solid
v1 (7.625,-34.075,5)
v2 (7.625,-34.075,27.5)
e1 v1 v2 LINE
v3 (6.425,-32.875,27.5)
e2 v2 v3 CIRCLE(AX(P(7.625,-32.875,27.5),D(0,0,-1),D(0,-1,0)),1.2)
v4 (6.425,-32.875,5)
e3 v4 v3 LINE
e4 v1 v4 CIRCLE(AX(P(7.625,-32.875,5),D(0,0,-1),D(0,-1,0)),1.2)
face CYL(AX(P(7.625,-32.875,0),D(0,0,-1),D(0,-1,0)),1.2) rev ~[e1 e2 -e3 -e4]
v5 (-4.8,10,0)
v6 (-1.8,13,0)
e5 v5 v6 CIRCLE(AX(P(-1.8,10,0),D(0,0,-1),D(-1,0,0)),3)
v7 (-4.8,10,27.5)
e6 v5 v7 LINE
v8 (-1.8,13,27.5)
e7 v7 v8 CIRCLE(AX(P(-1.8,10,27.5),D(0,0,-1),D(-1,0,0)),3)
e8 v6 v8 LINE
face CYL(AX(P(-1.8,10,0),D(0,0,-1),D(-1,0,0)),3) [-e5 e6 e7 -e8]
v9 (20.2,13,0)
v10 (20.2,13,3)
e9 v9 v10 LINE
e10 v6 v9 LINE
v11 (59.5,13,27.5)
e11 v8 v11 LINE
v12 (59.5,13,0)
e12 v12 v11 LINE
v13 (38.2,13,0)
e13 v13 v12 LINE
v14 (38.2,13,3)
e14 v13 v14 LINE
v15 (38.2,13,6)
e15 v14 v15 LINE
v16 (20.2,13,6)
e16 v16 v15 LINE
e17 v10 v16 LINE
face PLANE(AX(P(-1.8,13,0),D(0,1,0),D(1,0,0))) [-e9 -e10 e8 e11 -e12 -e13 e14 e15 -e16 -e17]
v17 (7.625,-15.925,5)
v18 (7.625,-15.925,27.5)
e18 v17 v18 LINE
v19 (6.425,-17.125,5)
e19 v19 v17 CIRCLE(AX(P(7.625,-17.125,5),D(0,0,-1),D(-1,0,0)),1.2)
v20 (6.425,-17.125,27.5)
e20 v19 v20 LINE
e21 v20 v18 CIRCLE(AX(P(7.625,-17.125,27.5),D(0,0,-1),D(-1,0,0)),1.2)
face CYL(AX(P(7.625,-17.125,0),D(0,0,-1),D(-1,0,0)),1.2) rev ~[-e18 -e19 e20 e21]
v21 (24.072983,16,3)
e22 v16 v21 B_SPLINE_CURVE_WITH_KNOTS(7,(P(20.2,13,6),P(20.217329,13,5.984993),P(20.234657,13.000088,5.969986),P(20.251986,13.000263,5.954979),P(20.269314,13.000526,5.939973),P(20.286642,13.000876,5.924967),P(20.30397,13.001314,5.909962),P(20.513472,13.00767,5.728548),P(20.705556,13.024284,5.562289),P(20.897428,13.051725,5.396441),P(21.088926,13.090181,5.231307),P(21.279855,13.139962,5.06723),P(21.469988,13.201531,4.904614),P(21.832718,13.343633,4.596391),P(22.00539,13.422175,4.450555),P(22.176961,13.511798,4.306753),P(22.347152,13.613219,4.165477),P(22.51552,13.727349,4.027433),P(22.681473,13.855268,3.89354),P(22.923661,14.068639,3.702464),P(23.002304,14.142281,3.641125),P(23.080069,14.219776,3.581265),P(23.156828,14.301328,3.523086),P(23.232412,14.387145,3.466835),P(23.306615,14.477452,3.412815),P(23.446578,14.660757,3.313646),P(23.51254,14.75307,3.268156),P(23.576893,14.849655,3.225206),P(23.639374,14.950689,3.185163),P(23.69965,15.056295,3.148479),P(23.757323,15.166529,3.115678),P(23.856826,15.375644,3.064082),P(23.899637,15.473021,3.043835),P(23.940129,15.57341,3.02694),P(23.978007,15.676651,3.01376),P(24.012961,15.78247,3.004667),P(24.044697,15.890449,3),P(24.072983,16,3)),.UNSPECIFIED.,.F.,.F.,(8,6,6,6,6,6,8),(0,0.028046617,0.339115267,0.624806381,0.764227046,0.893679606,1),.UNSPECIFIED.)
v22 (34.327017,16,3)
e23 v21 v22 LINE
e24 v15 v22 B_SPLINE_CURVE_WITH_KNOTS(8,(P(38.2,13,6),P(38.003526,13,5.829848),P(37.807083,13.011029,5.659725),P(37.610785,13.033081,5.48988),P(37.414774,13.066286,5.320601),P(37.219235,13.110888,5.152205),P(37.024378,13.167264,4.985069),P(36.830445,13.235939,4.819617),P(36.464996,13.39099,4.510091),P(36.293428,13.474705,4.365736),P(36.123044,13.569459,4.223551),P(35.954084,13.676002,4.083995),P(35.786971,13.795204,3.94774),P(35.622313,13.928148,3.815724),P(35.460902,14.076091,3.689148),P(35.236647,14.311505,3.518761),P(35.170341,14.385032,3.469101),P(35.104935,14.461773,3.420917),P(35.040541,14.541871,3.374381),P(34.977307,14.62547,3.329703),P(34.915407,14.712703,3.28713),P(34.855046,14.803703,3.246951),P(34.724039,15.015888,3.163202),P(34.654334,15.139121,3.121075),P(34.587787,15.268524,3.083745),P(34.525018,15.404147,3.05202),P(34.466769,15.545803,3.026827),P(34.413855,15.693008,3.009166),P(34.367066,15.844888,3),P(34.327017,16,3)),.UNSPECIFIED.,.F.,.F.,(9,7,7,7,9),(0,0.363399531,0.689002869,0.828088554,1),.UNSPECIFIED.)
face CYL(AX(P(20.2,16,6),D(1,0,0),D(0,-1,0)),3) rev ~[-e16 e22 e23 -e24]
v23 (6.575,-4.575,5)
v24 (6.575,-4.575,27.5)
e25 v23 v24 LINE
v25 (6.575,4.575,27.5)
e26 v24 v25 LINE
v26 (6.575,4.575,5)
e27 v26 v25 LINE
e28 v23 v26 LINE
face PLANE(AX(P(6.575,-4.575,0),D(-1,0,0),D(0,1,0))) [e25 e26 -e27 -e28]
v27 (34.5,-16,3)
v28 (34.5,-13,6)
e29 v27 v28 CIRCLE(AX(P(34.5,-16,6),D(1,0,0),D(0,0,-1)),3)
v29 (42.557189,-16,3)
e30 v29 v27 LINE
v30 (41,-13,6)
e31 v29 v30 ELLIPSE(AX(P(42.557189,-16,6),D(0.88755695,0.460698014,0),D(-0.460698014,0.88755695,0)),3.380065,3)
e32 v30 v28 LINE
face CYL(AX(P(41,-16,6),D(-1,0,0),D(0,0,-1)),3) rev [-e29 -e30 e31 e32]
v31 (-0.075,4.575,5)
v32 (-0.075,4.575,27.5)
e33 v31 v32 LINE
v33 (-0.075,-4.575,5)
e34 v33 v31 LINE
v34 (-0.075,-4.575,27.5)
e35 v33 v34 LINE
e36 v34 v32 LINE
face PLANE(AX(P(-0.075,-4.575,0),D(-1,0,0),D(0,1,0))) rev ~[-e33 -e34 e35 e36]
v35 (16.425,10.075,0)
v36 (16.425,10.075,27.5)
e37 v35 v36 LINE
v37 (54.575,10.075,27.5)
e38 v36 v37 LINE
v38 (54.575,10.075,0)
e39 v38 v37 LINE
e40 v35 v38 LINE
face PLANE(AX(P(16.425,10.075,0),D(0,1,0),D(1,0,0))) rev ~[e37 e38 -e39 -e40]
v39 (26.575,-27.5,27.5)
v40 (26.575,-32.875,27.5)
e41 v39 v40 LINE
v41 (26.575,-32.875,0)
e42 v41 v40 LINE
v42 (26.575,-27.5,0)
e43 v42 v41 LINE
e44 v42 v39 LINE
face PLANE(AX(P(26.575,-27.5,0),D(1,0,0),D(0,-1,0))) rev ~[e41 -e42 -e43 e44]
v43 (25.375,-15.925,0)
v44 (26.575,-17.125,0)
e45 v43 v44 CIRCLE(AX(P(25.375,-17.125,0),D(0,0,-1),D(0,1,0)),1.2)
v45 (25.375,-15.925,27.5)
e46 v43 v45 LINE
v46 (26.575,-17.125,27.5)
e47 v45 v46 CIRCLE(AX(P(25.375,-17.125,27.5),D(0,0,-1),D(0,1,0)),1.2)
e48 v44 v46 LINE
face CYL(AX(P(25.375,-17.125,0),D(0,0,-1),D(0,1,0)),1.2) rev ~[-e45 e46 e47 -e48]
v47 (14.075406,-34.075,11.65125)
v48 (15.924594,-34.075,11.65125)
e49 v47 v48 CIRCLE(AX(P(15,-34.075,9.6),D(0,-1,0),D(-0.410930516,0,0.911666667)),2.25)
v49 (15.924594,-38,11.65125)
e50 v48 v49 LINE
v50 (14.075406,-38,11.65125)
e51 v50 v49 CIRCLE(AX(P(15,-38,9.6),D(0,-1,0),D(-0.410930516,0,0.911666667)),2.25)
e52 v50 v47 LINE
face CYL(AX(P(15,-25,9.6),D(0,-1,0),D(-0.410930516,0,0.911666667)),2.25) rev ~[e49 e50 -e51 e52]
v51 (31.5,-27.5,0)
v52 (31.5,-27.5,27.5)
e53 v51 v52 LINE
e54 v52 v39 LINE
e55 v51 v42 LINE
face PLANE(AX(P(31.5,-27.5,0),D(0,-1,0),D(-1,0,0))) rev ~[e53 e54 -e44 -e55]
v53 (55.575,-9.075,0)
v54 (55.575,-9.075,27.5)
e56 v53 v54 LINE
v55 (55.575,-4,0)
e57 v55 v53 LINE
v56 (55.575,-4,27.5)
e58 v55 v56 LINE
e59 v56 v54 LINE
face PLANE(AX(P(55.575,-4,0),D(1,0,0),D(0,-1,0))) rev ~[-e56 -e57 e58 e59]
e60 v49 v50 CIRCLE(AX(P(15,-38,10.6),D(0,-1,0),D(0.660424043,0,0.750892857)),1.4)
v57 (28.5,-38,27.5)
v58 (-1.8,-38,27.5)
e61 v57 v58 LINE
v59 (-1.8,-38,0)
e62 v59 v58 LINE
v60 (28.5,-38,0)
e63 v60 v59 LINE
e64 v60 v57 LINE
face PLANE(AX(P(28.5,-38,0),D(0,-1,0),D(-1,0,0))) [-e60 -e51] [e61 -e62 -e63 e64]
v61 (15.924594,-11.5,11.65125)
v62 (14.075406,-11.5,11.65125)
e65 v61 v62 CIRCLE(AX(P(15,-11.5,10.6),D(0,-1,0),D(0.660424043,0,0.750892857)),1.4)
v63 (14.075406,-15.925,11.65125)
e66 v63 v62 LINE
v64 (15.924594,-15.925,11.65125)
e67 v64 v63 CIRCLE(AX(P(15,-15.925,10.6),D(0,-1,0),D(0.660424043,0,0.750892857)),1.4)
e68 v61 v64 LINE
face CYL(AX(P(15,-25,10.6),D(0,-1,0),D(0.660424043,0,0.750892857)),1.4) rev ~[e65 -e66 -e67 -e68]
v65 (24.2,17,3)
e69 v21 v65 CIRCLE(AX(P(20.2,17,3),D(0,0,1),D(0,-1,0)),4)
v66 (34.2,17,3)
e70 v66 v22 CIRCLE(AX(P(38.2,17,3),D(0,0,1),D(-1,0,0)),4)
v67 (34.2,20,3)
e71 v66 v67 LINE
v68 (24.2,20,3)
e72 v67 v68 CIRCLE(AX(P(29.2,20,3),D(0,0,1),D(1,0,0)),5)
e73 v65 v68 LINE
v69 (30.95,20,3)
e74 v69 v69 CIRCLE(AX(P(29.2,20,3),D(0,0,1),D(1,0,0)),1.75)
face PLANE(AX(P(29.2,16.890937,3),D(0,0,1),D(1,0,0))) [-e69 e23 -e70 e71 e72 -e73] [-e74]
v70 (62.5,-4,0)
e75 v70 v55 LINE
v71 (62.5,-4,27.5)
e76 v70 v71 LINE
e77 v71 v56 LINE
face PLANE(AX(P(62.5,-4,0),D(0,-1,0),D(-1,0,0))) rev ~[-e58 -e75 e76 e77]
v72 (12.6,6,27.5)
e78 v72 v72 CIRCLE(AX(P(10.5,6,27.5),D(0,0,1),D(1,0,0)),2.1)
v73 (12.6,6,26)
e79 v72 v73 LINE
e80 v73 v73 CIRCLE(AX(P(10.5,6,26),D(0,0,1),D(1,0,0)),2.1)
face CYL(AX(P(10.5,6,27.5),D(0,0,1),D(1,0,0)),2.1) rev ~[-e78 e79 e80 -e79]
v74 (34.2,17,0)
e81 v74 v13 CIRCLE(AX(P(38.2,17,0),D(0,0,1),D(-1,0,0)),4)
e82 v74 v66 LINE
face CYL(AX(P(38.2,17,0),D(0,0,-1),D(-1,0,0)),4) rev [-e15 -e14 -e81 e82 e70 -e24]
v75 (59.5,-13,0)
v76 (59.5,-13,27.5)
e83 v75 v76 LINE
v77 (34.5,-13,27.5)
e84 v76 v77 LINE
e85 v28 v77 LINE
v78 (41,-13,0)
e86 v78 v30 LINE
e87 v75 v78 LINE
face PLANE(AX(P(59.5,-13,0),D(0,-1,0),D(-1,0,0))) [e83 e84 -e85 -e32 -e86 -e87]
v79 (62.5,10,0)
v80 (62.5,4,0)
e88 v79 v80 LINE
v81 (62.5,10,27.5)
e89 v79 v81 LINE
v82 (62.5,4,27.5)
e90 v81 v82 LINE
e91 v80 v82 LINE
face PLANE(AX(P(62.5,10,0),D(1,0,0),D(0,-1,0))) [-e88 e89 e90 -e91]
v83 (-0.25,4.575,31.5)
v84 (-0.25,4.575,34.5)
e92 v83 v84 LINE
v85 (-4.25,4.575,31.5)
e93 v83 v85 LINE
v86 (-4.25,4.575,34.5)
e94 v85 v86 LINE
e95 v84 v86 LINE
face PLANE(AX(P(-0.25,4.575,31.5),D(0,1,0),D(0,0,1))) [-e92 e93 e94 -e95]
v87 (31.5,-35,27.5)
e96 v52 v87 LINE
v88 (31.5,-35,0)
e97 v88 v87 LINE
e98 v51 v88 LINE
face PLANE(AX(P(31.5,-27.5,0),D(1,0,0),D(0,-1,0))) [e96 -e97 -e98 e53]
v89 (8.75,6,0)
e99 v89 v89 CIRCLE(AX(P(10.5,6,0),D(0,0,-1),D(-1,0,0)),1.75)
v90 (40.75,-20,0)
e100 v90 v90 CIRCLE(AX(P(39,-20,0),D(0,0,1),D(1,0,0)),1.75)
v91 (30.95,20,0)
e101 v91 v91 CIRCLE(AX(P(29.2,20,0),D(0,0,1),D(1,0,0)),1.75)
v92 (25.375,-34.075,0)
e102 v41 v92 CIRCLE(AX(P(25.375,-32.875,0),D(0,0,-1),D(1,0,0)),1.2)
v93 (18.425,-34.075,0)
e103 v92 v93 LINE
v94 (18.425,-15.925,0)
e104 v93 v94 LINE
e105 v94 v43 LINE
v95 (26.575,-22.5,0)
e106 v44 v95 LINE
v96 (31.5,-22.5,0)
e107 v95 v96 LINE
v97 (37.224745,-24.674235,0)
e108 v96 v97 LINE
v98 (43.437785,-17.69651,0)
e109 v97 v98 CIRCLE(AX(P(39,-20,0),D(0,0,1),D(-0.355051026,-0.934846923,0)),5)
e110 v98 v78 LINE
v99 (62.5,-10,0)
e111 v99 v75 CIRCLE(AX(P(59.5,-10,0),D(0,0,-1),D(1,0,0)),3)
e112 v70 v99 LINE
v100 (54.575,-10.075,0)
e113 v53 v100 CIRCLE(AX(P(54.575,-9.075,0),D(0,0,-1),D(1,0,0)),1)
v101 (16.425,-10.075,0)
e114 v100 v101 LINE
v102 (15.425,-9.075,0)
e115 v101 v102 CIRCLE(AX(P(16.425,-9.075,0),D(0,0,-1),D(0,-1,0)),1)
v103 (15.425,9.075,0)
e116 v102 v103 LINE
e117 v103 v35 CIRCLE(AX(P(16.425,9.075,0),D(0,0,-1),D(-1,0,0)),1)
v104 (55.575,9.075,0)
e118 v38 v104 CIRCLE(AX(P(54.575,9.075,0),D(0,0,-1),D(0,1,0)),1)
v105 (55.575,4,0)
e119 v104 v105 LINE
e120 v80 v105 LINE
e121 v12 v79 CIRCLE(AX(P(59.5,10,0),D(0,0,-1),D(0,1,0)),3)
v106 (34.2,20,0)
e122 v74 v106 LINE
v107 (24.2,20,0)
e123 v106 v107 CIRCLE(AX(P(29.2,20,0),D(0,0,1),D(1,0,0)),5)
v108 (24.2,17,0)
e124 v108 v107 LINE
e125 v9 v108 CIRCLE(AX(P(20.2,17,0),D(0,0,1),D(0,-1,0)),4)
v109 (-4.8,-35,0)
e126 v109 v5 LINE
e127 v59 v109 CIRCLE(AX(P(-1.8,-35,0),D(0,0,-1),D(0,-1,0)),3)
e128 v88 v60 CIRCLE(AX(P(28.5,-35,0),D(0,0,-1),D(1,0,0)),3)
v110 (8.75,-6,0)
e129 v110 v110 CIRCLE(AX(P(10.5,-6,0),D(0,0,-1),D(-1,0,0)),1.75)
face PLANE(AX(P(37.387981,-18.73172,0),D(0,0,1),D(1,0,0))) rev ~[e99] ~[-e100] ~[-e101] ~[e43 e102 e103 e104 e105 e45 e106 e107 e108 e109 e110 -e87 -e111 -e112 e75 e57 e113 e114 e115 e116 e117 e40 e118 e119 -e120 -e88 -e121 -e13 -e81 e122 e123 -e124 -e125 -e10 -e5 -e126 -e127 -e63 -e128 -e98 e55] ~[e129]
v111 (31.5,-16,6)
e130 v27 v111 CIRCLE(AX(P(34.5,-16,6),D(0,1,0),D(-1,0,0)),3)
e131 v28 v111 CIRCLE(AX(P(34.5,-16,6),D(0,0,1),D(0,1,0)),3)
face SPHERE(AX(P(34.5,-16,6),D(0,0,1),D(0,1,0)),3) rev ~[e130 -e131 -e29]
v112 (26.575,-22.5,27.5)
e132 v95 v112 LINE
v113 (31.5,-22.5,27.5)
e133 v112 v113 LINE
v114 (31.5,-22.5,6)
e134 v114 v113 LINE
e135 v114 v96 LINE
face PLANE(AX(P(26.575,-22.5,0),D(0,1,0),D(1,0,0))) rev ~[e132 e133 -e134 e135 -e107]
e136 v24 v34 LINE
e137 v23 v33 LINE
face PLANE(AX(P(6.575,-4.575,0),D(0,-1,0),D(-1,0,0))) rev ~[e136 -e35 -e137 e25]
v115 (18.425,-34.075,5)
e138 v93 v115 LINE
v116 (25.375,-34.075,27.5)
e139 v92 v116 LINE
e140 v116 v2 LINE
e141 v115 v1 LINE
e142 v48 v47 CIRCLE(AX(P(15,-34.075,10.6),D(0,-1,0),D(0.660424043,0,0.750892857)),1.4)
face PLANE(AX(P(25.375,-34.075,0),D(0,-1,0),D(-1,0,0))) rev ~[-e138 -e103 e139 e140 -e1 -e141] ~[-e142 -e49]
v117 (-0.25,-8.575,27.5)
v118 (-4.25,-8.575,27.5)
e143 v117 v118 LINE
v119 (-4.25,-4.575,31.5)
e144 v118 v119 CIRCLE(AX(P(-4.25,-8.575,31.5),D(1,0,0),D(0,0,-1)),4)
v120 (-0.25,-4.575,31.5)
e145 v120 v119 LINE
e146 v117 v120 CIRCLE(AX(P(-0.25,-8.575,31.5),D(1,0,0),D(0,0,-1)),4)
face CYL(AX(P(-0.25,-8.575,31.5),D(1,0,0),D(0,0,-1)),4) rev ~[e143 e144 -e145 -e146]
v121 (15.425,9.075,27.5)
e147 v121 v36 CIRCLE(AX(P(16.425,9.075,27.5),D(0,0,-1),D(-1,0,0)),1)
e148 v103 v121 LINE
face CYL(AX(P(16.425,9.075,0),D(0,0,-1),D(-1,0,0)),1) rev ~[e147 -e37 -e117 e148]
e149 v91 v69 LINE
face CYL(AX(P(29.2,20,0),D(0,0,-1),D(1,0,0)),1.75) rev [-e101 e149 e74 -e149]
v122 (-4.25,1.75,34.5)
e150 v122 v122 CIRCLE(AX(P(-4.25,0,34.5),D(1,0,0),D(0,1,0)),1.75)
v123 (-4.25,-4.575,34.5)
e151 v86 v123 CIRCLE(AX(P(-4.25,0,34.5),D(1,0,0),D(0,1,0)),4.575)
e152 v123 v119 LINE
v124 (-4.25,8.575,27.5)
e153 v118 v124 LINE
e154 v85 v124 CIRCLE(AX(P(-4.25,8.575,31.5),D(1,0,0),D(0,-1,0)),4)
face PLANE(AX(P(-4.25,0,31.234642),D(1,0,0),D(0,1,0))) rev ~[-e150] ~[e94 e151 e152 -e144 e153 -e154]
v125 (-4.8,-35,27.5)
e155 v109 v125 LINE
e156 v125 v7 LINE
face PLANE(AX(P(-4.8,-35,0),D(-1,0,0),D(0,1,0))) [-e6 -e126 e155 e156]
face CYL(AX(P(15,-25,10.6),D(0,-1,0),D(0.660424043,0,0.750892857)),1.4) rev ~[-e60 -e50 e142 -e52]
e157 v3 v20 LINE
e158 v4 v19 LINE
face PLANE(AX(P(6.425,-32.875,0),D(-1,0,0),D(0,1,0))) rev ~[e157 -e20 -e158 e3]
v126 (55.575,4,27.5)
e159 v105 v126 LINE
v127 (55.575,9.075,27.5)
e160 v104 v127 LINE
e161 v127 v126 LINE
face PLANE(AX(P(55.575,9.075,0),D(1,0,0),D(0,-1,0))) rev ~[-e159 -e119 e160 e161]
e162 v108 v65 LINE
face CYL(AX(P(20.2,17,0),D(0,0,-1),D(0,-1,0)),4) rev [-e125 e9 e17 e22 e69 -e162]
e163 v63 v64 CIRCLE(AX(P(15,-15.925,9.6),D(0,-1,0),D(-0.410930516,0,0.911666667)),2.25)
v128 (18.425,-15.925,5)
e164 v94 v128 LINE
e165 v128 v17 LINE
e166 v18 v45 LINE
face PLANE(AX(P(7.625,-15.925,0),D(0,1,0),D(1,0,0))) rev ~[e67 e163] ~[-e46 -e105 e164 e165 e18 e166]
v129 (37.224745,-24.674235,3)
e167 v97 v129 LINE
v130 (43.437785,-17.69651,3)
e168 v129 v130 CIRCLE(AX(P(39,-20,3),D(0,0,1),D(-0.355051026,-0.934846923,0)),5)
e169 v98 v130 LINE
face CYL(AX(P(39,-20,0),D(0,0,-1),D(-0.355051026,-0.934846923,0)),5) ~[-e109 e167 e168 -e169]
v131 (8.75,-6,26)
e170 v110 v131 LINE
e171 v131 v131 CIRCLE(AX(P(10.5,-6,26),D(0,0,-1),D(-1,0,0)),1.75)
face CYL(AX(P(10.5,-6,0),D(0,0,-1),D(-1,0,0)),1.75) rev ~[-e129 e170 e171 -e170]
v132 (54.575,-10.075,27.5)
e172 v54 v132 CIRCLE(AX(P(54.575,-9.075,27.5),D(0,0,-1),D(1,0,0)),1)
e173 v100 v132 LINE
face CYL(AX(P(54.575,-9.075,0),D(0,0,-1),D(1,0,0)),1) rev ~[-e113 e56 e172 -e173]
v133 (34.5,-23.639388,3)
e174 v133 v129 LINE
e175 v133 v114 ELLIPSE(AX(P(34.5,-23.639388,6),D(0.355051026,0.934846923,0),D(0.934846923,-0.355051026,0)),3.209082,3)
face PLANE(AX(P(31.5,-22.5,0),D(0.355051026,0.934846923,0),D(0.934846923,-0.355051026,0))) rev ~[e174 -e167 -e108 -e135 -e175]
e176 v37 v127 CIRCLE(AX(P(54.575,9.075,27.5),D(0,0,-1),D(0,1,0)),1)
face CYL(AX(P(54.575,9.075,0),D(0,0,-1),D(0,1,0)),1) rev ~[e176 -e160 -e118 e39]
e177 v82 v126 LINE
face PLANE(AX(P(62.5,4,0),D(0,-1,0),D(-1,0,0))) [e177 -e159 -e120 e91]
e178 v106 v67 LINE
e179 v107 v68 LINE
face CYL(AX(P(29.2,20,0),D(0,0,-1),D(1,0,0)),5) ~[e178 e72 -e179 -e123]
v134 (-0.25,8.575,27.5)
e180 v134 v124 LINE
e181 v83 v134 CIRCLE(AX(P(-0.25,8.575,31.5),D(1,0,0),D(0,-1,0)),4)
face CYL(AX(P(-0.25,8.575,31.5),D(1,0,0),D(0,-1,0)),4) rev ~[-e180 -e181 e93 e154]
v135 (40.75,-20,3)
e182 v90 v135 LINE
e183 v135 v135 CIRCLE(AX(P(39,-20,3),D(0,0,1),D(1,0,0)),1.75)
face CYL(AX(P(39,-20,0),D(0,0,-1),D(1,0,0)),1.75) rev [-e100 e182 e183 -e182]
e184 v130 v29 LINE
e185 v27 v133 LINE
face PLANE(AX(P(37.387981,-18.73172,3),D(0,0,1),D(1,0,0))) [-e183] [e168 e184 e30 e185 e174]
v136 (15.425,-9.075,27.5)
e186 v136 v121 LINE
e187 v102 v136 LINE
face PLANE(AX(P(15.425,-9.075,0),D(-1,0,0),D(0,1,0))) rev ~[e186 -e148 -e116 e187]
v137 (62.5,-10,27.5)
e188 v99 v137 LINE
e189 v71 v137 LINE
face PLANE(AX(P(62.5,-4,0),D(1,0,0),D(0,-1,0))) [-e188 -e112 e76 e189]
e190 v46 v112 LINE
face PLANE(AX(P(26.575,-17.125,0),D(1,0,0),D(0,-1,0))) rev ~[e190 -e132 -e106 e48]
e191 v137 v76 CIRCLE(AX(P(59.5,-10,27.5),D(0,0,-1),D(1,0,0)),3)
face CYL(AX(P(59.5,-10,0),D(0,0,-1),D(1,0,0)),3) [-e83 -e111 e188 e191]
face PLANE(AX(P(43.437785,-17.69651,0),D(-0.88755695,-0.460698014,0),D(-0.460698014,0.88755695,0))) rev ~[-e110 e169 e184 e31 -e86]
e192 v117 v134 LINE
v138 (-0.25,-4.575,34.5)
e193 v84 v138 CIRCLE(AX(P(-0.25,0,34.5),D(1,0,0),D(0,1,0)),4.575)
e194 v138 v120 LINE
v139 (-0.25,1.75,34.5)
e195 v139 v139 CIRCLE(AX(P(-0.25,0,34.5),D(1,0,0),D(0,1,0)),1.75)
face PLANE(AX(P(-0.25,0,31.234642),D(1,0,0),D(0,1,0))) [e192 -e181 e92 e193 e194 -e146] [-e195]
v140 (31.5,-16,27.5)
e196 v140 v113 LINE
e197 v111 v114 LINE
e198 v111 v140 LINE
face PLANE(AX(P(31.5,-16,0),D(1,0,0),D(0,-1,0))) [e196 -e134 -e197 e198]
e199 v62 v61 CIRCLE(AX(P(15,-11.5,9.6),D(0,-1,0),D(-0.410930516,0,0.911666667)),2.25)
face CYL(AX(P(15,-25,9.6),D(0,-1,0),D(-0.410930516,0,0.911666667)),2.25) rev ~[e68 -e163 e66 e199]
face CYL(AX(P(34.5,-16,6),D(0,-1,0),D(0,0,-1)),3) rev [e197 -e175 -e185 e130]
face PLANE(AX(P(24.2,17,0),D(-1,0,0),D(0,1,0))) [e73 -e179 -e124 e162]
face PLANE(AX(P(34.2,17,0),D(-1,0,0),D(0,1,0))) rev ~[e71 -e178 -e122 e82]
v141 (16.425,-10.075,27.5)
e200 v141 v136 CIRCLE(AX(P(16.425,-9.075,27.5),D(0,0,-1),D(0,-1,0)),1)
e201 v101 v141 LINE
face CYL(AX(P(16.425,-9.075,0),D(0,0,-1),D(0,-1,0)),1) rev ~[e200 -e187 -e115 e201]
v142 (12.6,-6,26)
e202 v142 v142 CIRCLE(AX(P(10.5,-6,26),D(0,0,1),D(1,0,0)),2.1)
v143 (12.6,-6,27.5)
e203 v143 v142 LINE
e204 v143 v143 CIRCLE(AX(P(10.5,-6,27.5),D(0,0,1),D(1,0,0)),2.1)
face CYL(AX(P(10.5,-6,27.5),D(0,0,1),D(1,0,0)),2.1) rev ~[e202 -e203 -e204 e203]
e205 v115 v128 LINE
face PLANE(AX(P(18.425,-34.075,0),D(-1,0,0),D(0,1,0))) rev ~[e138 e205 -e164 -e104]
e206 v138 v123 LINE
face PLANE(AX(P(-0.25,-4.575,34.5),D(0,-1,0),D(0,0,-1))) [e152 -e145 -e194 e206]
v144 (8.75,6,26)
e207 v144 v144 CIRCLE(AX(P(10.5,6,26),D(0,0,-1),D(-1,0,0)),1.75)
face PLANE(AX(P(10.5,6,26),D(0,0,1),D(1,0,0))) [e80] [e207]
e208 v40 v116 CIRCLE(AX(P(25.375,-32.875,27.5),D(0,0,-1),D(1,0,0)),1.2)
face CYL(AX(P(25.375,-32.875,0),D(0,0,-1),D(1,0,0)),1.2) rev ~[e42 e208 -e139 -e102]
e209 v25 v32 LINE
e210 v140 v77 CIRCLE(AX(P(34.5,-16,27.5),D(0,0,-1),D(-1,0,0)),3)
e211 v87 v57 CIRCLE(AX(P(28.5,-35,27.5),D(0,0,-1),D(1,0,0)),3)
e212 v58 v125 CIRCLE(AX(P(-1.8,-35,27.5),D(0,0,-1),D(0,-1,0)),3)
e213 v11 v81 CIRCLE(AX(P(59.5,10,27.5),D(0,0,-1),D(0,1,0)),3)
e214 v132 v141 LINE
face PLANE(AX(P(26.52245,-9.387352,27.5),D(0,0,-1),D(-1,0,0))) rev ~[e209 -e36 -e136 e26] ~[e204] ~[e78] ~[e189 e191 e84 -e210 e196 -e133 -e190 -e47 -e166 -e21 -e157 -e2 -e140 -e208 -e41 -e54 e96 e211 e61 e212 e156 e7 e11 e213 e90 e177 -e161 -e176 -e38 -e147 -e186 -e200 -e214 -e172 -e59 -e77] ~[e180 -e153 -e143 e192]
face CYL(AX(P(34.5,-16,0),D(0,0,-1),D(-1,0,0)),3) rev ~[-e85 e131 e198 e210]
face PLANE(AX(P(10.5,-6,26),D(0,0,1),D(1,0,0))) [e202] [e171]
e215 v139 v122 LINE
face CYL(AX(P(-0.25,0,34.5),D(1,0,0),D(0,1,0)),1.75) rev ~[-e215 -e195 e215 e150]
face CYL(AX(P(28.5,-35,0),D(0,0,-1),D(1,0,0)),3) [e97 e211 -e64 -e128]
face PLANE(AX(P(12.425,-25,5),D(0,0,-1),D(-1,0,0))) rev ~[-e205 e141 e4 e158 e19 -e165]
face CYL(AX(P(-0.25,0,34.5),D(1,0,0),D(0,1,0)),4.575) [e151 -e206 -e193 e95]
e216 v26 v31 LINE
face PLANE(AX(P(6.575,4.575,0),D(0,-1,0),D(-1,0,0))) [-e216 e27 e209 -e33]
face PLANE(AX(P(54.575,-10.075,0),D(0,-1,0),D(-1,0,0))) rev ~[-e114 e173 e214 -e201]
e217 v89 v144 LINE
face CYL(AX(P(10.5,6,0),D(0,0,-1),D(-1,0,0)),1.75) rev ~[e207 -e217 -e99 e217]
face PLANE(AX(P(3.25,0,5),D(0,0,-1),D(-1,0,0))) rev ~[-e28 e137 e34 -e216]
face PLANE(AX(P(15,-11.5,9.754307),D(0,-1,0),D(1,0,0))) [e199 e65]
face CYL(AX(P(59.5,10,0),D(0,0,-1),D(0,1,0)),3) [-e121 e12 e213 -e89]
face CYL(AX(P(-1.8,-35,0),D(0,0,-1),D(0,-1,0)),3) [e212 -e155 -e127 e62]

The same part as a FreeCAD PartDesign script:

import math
import FreeCAD as App
import Part
import Sketcher
Q = App.Units.Quantity


def edges_at(feature, points):
    """Names of the edges that pass closest to the given points."""
    edges = feature.Shape.Edges
    near = lambda p: min(range(len(edges)), key=lambda i: edges[i].distToShape(Part.Vertex(*p))[0])
    return sorted({f"Edge{near(p) + 1}" for p in points})


def add_polygon(sketch, points):
    """Adds a closed chain of lines whose ends are joined by coincident constraints."""
    first, n = sketch.GeometryCount, len(points)
    for a, b in zip(points, points[1:] + points[:1]):
        sketch.addGeometry(Part.LineSegment(App.Vector(*a, 0), App.Vector(*b, 0)), False)
    for i in range(n):
        sketch.addConstraint(Sketcher.Constraint("Coincident", first + i, 2, first + (i + 1) % n, 1))

doc = App.newDocument("Part")
body = doc.addObject("PartDesign::Body", "Body")

# Sketch on XY plane
sketch1 = body.newObject("Sketcher::SketchObject", "Sketch")
sketch1.AttachmentSupport = (doc.getObject("XY_Plane"), [""])
sketch1.MapMode = "FlatFace"
sketch1.addGeometry(Part.LineSegment(App.Vector(28.5, -38, 0), App.Vector(-1.8, -38, 0)), False)  # 0
sketch1.addGeometry(Part.ArcOfCircle(Part.Circle(App.Vector(-1.8, -35, 0), App.Vector(0, 0, 1), 3), math.radians(180), math.radians(270)), False)  # 1
sketch1.addGeometry(Part.LineSegment(App.Vector(-4.8, -35, 0), App.Vector(-4.8, 10, 0)), False)  # 2
sketch1.addGeometry(Part.ArcOfCircle(Part.Circle(App.Vector(-1.8, 10, 0), App.Vector(0, 0, 1), 3), math.radians(90), math.radians(180)), False)  # 3
sketch1.addGeometry(Part.LineSegment(App.Vector(-1.8, 13, 0), App.Vector(59.5, 13, 0)), False)  # 4
sketch1.addGeometry(Part.ArcOfCircle(Part.Circle(App.Vector(59.5, 10, 0), App.Vector(0, 0, 1), 3), math.radians(0), math.radians(90)), False)  # 5
sketch1.addGeometry(Part.LineSegment(App.Vector(62.5, 10, 0), App.Vector(62.5, 4, 0)), False)  # 6
sketch1.addGeometry(Part.LineSegment(App.Vector(62.5, 4, 0), App.Vector(55.6, 4, 0)), False)  # 7
sketch1.addGeometry(Part.LineSegment(App.Vector(55.6, 4, 0), App.Vector(55.6, 9.1, 0)), False)  # 8
sketch1.addGeometry(Part.ArcOfCircle(Part.Circle(App.Vector(54.6, 9.1, 0), App.Vector(0, 0, 1), 1), math.radians(0), math.radians(90)), False)  # 9
sketch1.addGeometry(Part.LineSegment(App.Vector(54.6, 10.1, 0), App.Vector(16.4, 10.1, 0)), False)  # 10
sketch1.addGeometry(Part.ArcOfCircle(Part.Circle(App.Vector(16.4, 9.1, 0), App.Vector(0, 0, 1), 1), math.radians(90), math.radians(180)), False)  # 11
sketch1.addGeometry(Part.LineSegment(App.Vector(15.4, 9.1, 0), App.Vector(15.4, -9.1, 0)), False)  # 12
sketch1.addGeometry(Part.ArcOfCircle(Part.Circle(App.Vector(16.4, -9.1, 0), App.Vector(0, 0, 1), 1), math.radians(180), math.radians(270)), False)  # 13
sketch1.addGeometry(Part.LineSegment(App.Vector(16.4, -10.1, 0), App.Vector(54.6, -10.1, 0)), False)  # 14
sketch1.addGeometry(Part.ArcOfCircle(Part.Circle(App.Vector(54.6, -9.1, 0), App.Vector(0, 0, 1), 1), math.radians(-90), math.radians(0)), False)  # 15
sketch1.addGeometry(Part.LineSegment(App.Vector(55.6, -9.1, 0), App.Vector(55.6, -4, 0)), False)  # 16
sketch1.addGeometry(Part.LineSegment(App.Vector(55.6, -4, 0), App.Vector(62.5, -4, 0)), False)  # 17
sketch1.addGeometry(Part.LineSegment(App.Vector(62.5, -4, 0), App.Vector(62.5, -10, 0)), False)  # 18
sketch1.addGeometry(Part.ArcOfCircle(Part.Circle(App.Vector(59.5, -10, 0), App.Vector(0, 0, 1), 3), math.radians(-90), math.radians(0)), False)  # 19
sketch1.addGeometry(Part.LineSegment(App.Vector(59.5, -13, 0), App.Vector(34.5, -13, 0)), False)  # 20
sketch1.addGeometry(Part.ArcOfCircle(Part.Circle(App.Vector(34.5, -16, 0), App.Vector(0, 0, 1), 3), math.radians(90), math.radians(180)), False)  # 21
sketch1.addGeometry(Part.LineSegment(App.Vector(31.5, -16, 0), App.Vector(31.5, -22.5, 0)), False)  # 22
sketch1.addGeometry(Part.LineSegment(App.Vector(31.5, -22.5, 0), App.Vector(26.6, -22.5, 0)), False)  # 23
sketch1.addGeometry(Part.LineSegment(App.Vector(26.6, -22.5, 0), App.Vector(26.6, -17.1, 0)), False)  # 24
sketch1.addGeometry(Part.ArcOfCircle(Part.Circle(App.Vector(25.4, -17.1, 0), App.Vector(0, 0, 1), 1.2), math.radians(0), math.radians(90)), False)  # 25
sketch1.addGeometry(Part.LineSegment(App.Vector(25.4, -15.9, 0), App.Vector(7.6, -15.9, 0)), False)  # 26
sketch1.addGeometry(Part.ArcOfCircle(Part.Circle(App.Vector(7.6, -17.1, 0), App.Vector(0, 0, 1), 1.2), math.radians(90), math.radians(180)), False)  # 27
sketch1.addGeometry(Part.LineSegment(App.Vector(6.4, -17.1, 0), App.Vector(6.4, -32.9, 0)), False)  # 28
sketch1.addGeometry(Part.ArcOfCircle(Part.Circle(App.Vector(7.6, -32.9, 0), App.Vector(0, 0, 1), 1.2), math.radians(180), math.radians(270)), False)  # 29
sketch1.addGeometry(Part.LineSegment(App.Vector(7.6, -34.1, 0), App.Vector(25.4, -34.1, 0)), False)  # 30
sketch1.addGeometry(Part.ArcOfCircle(Part.Circle(App.Vector(25.4, -32.9, 0), App.Vector(0, 0, 1), 1.2), math.radians(-90), math.radians(0)), False)  # 31
sketch1.addGeometry(Part.LineSegment(App.Vector(26.6, -32.9, 0), App.Vector(26.6, -27.5, 0)), False)  # 32
sketch1.addGeometry(Part.LineSegment(App.Vector(26.6, -27.5, 0), App.Vector(31.5, -27.5, 0)), False)  # 33
sketch1.addGeometry(Part.LineSegment(App.Vector(31.5, -27.5, 0), App.Vector(31.5, -35, 0)), False)  # 34
sketch1.addGeometry(Part.ArcOfCircle(Part.Circle(App.Vector(28.5, -35, 0), App.Vector(0, 0, 1), 3), math.radians(-90), math.radians(0)), False)  # 35
sketch1.addGeometry(Part.Circle(App.Vector(10.5, -6, 0), App.Vector(0, 0, 1), 1.8), False)  # 36
sketch1.addGeometry(Part.Circle(App.Vector(10.5, 6, 0), App.Vector(0, 0, 1), 1.8), False)  # 37
add_polygon(sketch1, [(-0.1, -4.6), (6.6, -4.6), (6.6, 4.6), (-0.1, 4.6)])  # lines 38-41
sketch1.addConstraint(Sketcher.Constraint("Tangent", 0, 2, 1, 2))
sketch1.addConstraint(Sketcher.Constraint("Tangent", 1, 1, 2, 1))
sketch1.addConstraint(Sketcher.Constraint("Tangent", 2, 2, 3, 2))
sketch1.addConstraint(Sketcher.Constraint("Tangent", 3, 1, 4, 1))
sketch1.addConstraint(Sketcher.Constraint("Tangent", 4, 2, 5, 2))
sketch1.addConstraint(Sketcher.Constraint("Tangent", 5, 1, 6, 1))
sketch1.addConstraint(Sketcher.Constraint("Coincident", 6, 2, 7, 1))
sketch1.addConstraint(Sketcher.Constraint("Coincident", 7, 2, 8, 1))
sketch1.addConstraint(Sketcher.Constraint("Tangent", 8, 2, 9, 1))
sketch1.addConstraint(Sketcher.Constraint("Tangent", 9, 2, 10, 1))
sketch1.addConstraint(Sketcher.Constraint("Tangent", 10, 2, 11, 1))
sketch1.addConstraint(Sketcher.Constraint("Tangent", 11, 2, 12, 1))
sketch1.addConstraint(Sketcher.Constraint("Tangent", 12, 2, 13, 1))
sketch1.addConstraint(Sketcher.Constraint("Tangent", 13, 2, 14, 1))
sketch1.addConstraint(Sketcher.Constraint("Tangent", 14, 2, 15, 1))
sketch1.addConstraint(Sketcher.Constraint("Tangent", 15, 2, 16, 1))
sketch1.addConstraint(Sketcher.Constraint("Coincident", 16, 2, 17, 1))
sketch1.addConstraint(Sketcher.Constraint("Coincident", 17, 2, 18, 1))
sketch1.addConstraint(Sketcher.Constraint("Tangent", 18, 2, 19, 2))
sketch1.addConstraint(Sketcher.Constraint("Tangent", 19, 1, 20, 1))
sketch1.addConstraint(Sketcher.Constraint("Tangent", 20, 2, 21, 1))
sketch1.addConstraint(Sketcher.Constraint("Tangent", 21, 2, 22, 1))
sketch1.addConstraint(Sketcher.Constraint("Coincident", 22, 2, 23, 1))
sketch1.addConstraint(Sketcher.Constraint("Coincident", 23, 2, 24, 1))
sketch1.addConstraint(Sketcher.Constraint("Tangent", 24, 2, 25, 1))
sketch1.addConstraint(Sketcher.Constraint("Tangent", 25, 2, 26, 1))
sketch1.addConstraint(Sketcher.Constraint("Tangent", 26, 2, 27, 1))
sketch1.addConstraint(Sketcher.Constraint("Tangent", 27, 2, 28, 1))
sketch1.addConstraint(Sketcher.Constraint("Tangent", 28, 2, 29, 1))
sketch1.addConstraint(Sketcher.Constraint("Tangent", 29, 2, 30, 1))
sketch1.addConstraint(Sketcher.Constraint("Tangent", 30, 2, 31, 1))
sketch1.addConstraint(Sketcher.Constraint("Tangent", 31, 2, 32, 1))
sketch1.addConstraint(Sketcher.Constraint("Coincident", 32, 2, 33, 1))
sketch1.addConstraint(Sketcher.Constraint("Coincident", 33, 2, 34, 1))
sketch1.addConstraint(Sketcher.Constraint("Tangent", 34, 2, 35, 2))
sketch1.addConstraint(Sketcher.Constraint("Tangent", 35, 1, 0, 1))
sketch1.addConstraint(Sketcher.Constraint("Horizontal", 0))
sketch1.addConstraint(Sketcher.Constraint("Vertical", 2))
sketch1.addConstraint(Sketcher.Constraint("Horizontal", 4))
sketch1.addConstraint(Sketcher.Constraint("Vertical", 6))
sketch1.addConstraint(Sketcher.Constraint("Horizontal", 7))
sketch1.addConstraint(Sketcher.Constraint("Vertical", 8))
sketch1.addConstraint(Sketcher.Constraint("Horizontal", 10))
sketch1.addConstraint(Sketcher.Constraint("Vertical", 12))
sketch1.addConstraint(Sketcher.Constraint("Horizontal", 14))
sketch1.addConstraint(Sketcher.Constraint("Vertical", 16))
sketch1.addConstraint(Sketcher.Constraint("Horizontal", 17))
sketch1.addConstraint(Sketcher.Constraint("Vertical", 18))
sketch1.addConstraint(Sketcher.Constraint("Horizontal", 20))
sketch1.addConstraint(Sketcher.Constraint("Vertical", 22))
sketch1.addConstraint(Sketcher.Constraint("Horizontal", 23))
sketch1.addConstraint(Sketcher.Constraint("Vertical", 24))
sketch1.addConstraint(Sketcher.Constraint("Horizontal", 26))
sketch1.addConstraint(Sketcher.Constraint("Vertical", 28))
sketch1.addConstraint(Sketcher.Constraint("Horizontal", 30))
sketch1.addConstraint(Sketcher.Constraint("Vertical", 32))
sketch1.addConstraint(Sketcher.Constraint("Horizontal", 33))
sketch1.addConstraint(Sketcher.Constraint("Vertical", 34))
sketch1.addConstraint(Sketcher.Constraint("Horizontal", 38))
sketch1.addConstraint(Sketcher.Constraint("Vertical", 39))
sketch1.addConstraint(Sketcher.Constraint("Horizontal", 40))
sketch1.addConstraint(Sketcher.Constraint("Vertical", 41))
sketch1.addConstraint(Sketcher.Constraint("Equal", 1, 3))
sketch1.addConstraint(Sketcher.Constraint("Equal", 3, 5))
sketch1.addConstraint(Sketcher.Constraint("Equal", 9, 11))
sketch1.addConstraint(Sketcher.Constraint("Equal", 11, 13))
sketch1.addConstraint(Sketcher.Constraint("Equal", 13, 15))
sketch1.addConstraint(Sketcher.Constraint("Equal", 5, 19))
sketch1.addConstraint(Sketcher.Constraint("Equal", 19, 21))
sketch1.addConstraint(Sketcher.Constraint("Equal", 25, 27))
sketch1.addConstraint(Sketcher.Constraint("Equal", 27, 29))
sketch1.addConstraint(Sketcher.Constraint("Equal", 29, 31))
sketch1.addConstraint(Sketcher.Constraint("Equal", 21, 35))
sketch1.addConstraint(Sketcher.Constraint("Equal", 36, 37))
sketch1.addConstraint(Sketcher.Constraint("Symmetric", 9, 3, 15, 3, -1))
sketch1.addConstraint(Sketcher.Constraint("Symmetric", 5, 3, 19, 3, -1))
sketch1.addConstraint(Sketcher.Constraint("Symmetric", 36, 3, 37, 3, -1))
sketch1.addConstraint(Sketcher.Constraint("Vertical", 25, 3, 31, 3))
sketch1.addConstraint(Sketcher.Constraint("Vertical", 22, 2, 33, 2))
sketch1.addConstraint(Sketcher.Constraint("Equal", 8, 16))
sketch1.addConstraint(Sketcher.Constraint("Equal", 24, 32))
sketch1.addConstraint(Sketcher.Constraint("Radius", 1, Q("3 mm")))
sketch1.addConstraint(Sketcher.Constraint("Radius", 9, Q("1 mm")))
sketch1.addConstraint(Sketcher.Constraint("Diameter", 36, Q("3.5 mm")))
sketch1.addConstraint(Sketcher.Constraint("Radius", 25, Q("1.2 mm")))
sketch1.addConstraint(Sketcher.Constraint("DistanceX", 20, 2, 20, 1, Q("25 mm")))
sketch1.addConstraint(Sketcher.Constraint("DistanceY", 2, 1, 2, 2, Q("45 mm")))
sketch1.addConstraint(Sketcher.Constraint("DistanceY", 6, 2, 6, 1, Q("6 mm")))
sketch1.addConstraint(Sketcher.Constraint("DistanceX", 0, 2, 0, 1, Q("30.3 mm")))
sketch1.addConstraint(Sketcher.Constraint("DistanceY", 22, 2, 22, 1, Q("6.5 mm")))
sketch1.addConstraint(Sketcher.Constraint("DistanceY", 34, 2, 34, 1, Q("7.5 mm")))
sketch1.addConstraint(Sketcher.Constraint("DistanceY", 1, 3, -1, 1, Q("35 mm")))
sketch1.addConstraint(Sketcher.Constraint("DistanceY", 36, 3, -1, 1, Q("6 mm")))
sketch1.addConstraint(Sketcher.Constraint("DistanceX", 27, 2, 12, 2, Q("9 mm")))
sketch1.addConstraint(Sketcher.Constraint("DistanceX", 10, 2, 10, 1, Q("38.15 mm")))
sketch1.addConstraint(Sketcher.Constraint("DistanceX", 26, 2, 26, 1, Q("17.75 mm")))
sketch1.addConstraint(Sketcher.Constraint("DistanceX", 38, 1, 38, 2, Q("6.65 mm")))
sketch1.addConstraint(Sketcher.Constraint("DistanceY", 12, 2, 12, 1, Q("18.15 mm")))
sketch1.addConstraint(Sketcher.Constraint("DistanceY", 28, 2, 28, 1, Q("15.75 mm")))
sketch1.addConstraint(Sketcher.Constraint("DistanceY", 39, 1, 39, 2, Q("9.15 mm")))
sketch1.addConstraint(Sketcher.Constraint("DistanceX", 1, 3, -1, 1, Q("1.8 mm")))
sketch1.addConstraint(Sketcher.Constraint("DistanceX", -1, 1, 36, 3, Q("10.5 mm")))
sketch1.addConstraint(Sketcher.Constraint("DistanceY", 12, 2, 38, 2, Q("4.5 mm")))
sketch1.addConstraint(Sketcher.Constraint("DistanceX", 41, 2, 26, 2, Q("7.7 mm")))
sketch1.addConstraint(Sketcher.Constraint("DistanceX", 7, 2, 7, 1, Q("6.925 mm")))
pad1 = body.newObject("PartDesign::Pad", "Pad")
pad1.Profile = sketch1
pad1.Length = 27.5

# Sketch on XY plane
sketch2 = body.newObject("Sketcher::SketchObject", "Sketch001")
sketch2.AttachmentSupport = (doc.getObject("XY_Plane"), [""])
sketch2.MapMode = "FlatFace"
add_polygon(sketch2, [(7, 5), (7, -5), (0, -5), (0, 5)])  # lines 0-3
add_polygon(sketch2, [(18, -16), (18, -34), (6, -34), (6, -16)])  # lines 4-7
sketch2.addConstraint(Sketcher.Constraint("Vertical", 0))
sketch2.addConstraint(Sketcher.Constraint("Horizontal", 1))
sketch2.addConstraint(Sketcher.Constraint("Vertical", 2))
sketch2.addConstraint(Sketcher.Constraint("Horizontal", 3))
sketch2.addConstraint(Sketcher.Constraint("Vertical", 4))
sketch2.addConstraint(Sketcher.Constraint("Horizontal", 5))
sketch2.addConstraint(Sketcher.Constraint("Vertical", 6))
sketch2.addConstraint(Sketcher.Constraint("Horizontal", 7))
sketch2.addConstraint(Sketcher.Constraint("DistanceX", 5, 2, 5, 1, Q("12 mm")))
sketch2.addConstraint(Sketcher.Constraint("DistanceX", 1, 2, 1, 1, Q("6.65 mm")))
sketch2.addConstraint(Sketcher.Constraint("DistanceY", 0, 2, 0, 1, Q("9.15 mm")))
sketch2.addConstraint(Sketcher.Constraint("DistanceY", 4, 2, 4, 1, Q("18.15 mm")))
sketch2.addConstraint(Sketcher.Constraint("DistanceY", 4, 2, 0, 2, Q("29.5 mm")))
sketch2.addConstraint(Sketcher.Constraint("DistanceX", 1, 2, 4, 2, Q("18.5 mm")))
sketch2.addConstraint(Sketcher.Constraint("DistanceX", -1, 1, 0, 2, Q("6.575 mm")))
sketch2.addConstraint(Sketcher.Constraint("DistanceY", 0, 2, -1, 1, Q("4.575 mm")))
pad2 = body.newObject("PartDesign::Pad", "Pad001")
pad2.Profile = sketch2
pad2.Length = 5

# Sketch on YZ plane
sketch3 = body.newObject("Sketcher::SketchObject", "Sketch002")
sketch3.AttachmentSupport = (doc.getObject("YZ_Plane"), [""])
sketch3.MapMode = "FlatFace"
sketch3.AttachmentOffset = App.Placement(App.Vector(0, 0, -0.25), App.Rotation())
sketch3.addGeometry(Part.LineSegment(App.Vector(-8.6, 27.5, 0), App.Vector(8.6, 27.5, 0)), False)
sketch3.addGeometry(Part.ArcOfCircle(Part.Circle(App.Vector(8.6, 31.5, 0), App.Vector(0, 0, 1), 4), math.radians(180), math.radians(270)), False)
sketch3.addGeometry(Part.LineSegment(App.Vector(4.6, 31.5, 0), App.Vector(4.6, 34.5, 0)), False)
sketch3.addGeometry(Part.ArcOfCircle(Part.Circle(App.Vector(0, 34.5, 0), App.Vector(0, 0, 1), 4.6), math.radians(0), math.radians(180)), False)
sketch3.addGeometry(Part.LineSegment(App.Vector(-4.6, 34.5, 0), App.Vector(-4.6, 31.5, 0)), False)
sketch3.addGeometry(Part.ArcOfCircle(Part.Circle(App.Vector(-8.6, 31.5, 0), App.Vector(0, 0, 1), 4), math.radians(-90), math.radians(0)), False)
sketch3.addGeometry(Part.Circle(App.Vector(0, 34.5, 0), App.Vector(0, 0, 1), 1.8), False)
sketch3.addConstraint(Sketcher.Constraint("Tangent", 0, 2, 1, 2))
sketch3.addConstraint(Sketcher.Constraint("Tangent", 1, 1, 2, 1))
sketch3.addConstraint(Sketcher.Constraint("Tangent", 2, 2, 3, 1))
sketch3.addConstraint(Sketcher.Constraint("Tangent", 3, 2, 4, 1))
sketch3.addConstraint(Sketcher.Constraint("Tangent", 4, 2, 5, 2))
sketch3.addConstraint(Sketcher.Constraint("Tangent", 5, 1, 0, 1))
sketch3.addConstraint(Sketcher.Constraint("Horizontal", 0))
sketch3.addConstraint(Sketcher.Constraint("Vertical", 2))
sketch3.addConstraint(Sketcher.Constraint("Vertical", 4))
sketch3.addConstraint(Sketcher.Constraint("Coincident", 6, 3, 3, 3))
sketch3.addConstraint(Sketcher.Constraint("Equal", 1, 5))
sketch3.addConstraint(Sketcher.Constraint("PointOnObject", 3, 3, -2))
sketch3.addConstraint(Sketcher.Constraint("Radius", 1, Q("4 mm")))
sketch3.addConstraint(Sketcher.Constraint("Diameter", 6, Q("3.5 mm")))
sketch3.addConstraint(Sketcher.Constraint("DistanceY", 2, 1, 2, 2, Q("3 mm")))
sketch3.addConstraint(Sketcher.Constraint("Radius", 3, Q("4.575 mm")))
sketch3.addConstraint(Sketcher.Constraint("DistanceY", -1, 1, 1, 3, Q("31.5 mm")))
pad3 = body.newObject("PartDesign::Pad", "Pad002")
pad3.Profile = sketch3
pad3.Length = 4
pad3.Reversed = True

# Sketch on XY plane
sketch4 = body.newObject("Sketcher::SketchObject", "Sketch003")
sketch4.AttachmentSupport = (doc.getObject("XY_Plane"), [""])
sketch4.MapMode = "FlatFace"
sketch4.addGeometry(Part.ArcOfCircle(Part.Circle(App.Vector(34.5, -16, 0), App.Vector(0, 0, 1), 3), math.radians(90), math.radians(180)), False)
sketch4.addGeometry(Part.LineSegment(App.Vector(31.5, -16, 0), App.Vector(31.5, -22.5, 0)), False)
sketch4.addGeometry(Part.LineSegment(App.Vector(31.5, -22.5, 0), App.Vector(37.2, -24.7, 0)), False)
sketch4.addGeometry(Part.ArcOfCircle(Part.Circle(App.Vector(39, -20, 0), App.Vector(0, 0, 1), 5), math.radians(-111), math.radians(27)), False)
sketch4.addGeometry(Part.LineSegment(App.Vector(43.4, -17.7, 0), App.Vector(41, -13, 0)), False)
sketch4.addGeometry(Part.LineSegment(App.Vector(41, -13, 0), App.Vector(34.5, -13, 0)), False)
sketch4.addGeometry(Part.Circle(App.Vector(39, -20, 0), App.Vector(0, 0, 1), 1.8), False)
sketch4.addGeometry(Part.LineSegment(App.Vector(20.2, 13, 0), App.Vector(38.2, 13, 0)), False)
sketch4.addGeometry(Part.ArcOfCircle(Part.Circle(App.Vector(38.2, 17, 0), App.Vector(0, 0, 1), 4), math.radians(180), math.radians(270)), False)
sketch4.addGeometry(Part.LineSegment(App.Vector(34.2, 17, 0), App.Vector(34.2, 20, 0)), False)
sketch4.addGeometry(Part.ArcOfCircle(Part.Circle(App.Vector(29.2, 20, 0), App.Vector(0, 0, 1), 5), math.radians(0), math.radians(180)), False)
sketch4.addGeometry(Part.LineSegment(App.Vector(24.2, 20, 0), App.Vector(24.2, 17, 0)), False)
sketch4.addGeometry(Part.ArcOfCircle(Part.Circle(App.Vector(20.2, 17, 0), App.Vector(0, 0, 1), 4), math.radians(-90), math.radians(0)), False)
sketch4.addGeometry(Part.Circle(App.Vector(29.2, 20, 0), App.Vector(0, 0, 1), 1.8), False)
sketch4.addConstraint(Sketcher.Constraint("Tangent", 0, 2, 1, 1))
sketch4.addConstraint(Sketcher.Constraint("Coincident", 1, 2, 2, 1))
sketch4.addConstraint(Sketcher.Constraint("Tangent", 2, 2, 3, 1))
sketch4.addConstraint(Sketcher.Constraint("Tangent", 3, 2, 4, 1))
sketch4.addConstraint(Sketcher.Constraint("Coincident", 4, 2, 5, 1))
sketch4.addConstraint(Sketcher.Constraint("Tangent", 5, 2, 0, 1))
sketch4.addConstraint(Sketcher.Constraint("Tangent", 7, 2, 8, 2))
sketch4.addConstraint(Sketcher.Constraint("Tangent", 8, 1, 9, 1))
sketch4.addConstraint(Sketcher.Constraint("Tangent", 9, 2, 10, 1))
sketch4.addConstraint(Sketcher.Constraint("Tangent", 10, 2, 11, 1))
sketch4.addConstraint(Sketcher.Constraint("Tangent", 11, 2, 12, 2))
sketch4.addConstraint(Sketcher.Constraint("Tangent", 12, 1, 7, 1))
sketch4.addConstraint(Sketcher.Constraint("Vertical", 1))
sketch4.addConstraint(Sketcher.Constraint("Horizontal", 5))
sketch4.addConstraint(Sketcher.Constraint("Horizontal", 7))
sketch4.addConstraint(Sketcher.Constraint("Vertical", 9))
sketch4.addConstraint(Sketcher.Constraint("Vertical", 11))
sketch4.addConstraint(Sketcher.Constraint("Coincident", 6, 3, 3, 3))
sketch4.addConstraint(Sketcher.Constraint("Coincident", 13, 3, 10, 3))
sketch4.addConstraint(Sketcher.Constraint("Equal", 3, 10))
sketch4.addConstraint(Sketcher.Constraint("Equal", 8, 12))
sketch4.addConstraint(Sketcher.Constraint("Equal", 6, 13))
sketch4.addConstraint(Sketcher.Constraint("Equal", 5, 1))
sketch4.addConstraint(Sketcher.Constraint("Radius", 0, Q("3 mm")))
sketch4.addConstraint(Sketcher.Constraint("Radius", 3, Q("5 mm")))
sketch4.addConstraint(Sketcher.Constraint("Radius", 8, Q("4 mm")))
sketch4.addConstraint(Sketcher.Constraint("Diameter", 6, Q("3.5 mm")))
sketch4.addConstraint(Sketcher.Constraint("DistanceY", 9, 1, 9, 2, Q("3 mm")))
sketch4.addConstraint(Sketcher.Constraint("DistanceX", 5, 2, 5, 1, Q("6.5 mm")))
sketch4.addConstraint(Sketcher.Constraint("DistanceY", 0, 3, -1, 1, Q("16 mm")))
sketch4.addConstraint(Sketcher.Constraint("DistanceX", -1, 1, 3, 3, Q("39 mm")))
sketch4.addConstraint(Sketcher.Constraint("DistanceY", 3, 3, -1, 1, Q("20 mm")))
sketch4.addConstraint(Sketcher.Constraint("DistanceY", -1, 1, 8, 3, Q("17 mm")))
sketch4.addConstraint(Sketcher.Constraint("DistanceX", -1, 1, 4, 2, Q("41 mm")))
sketch4.addConstraint(Sketcher.Constraint("DistanceX", -1, 1, 8, 3, Q("38.2 mm")))
pad4 = body.newObject("PartDesign::Pad", "Pad003")
pad4.Profile = sketch4
pad4.Length = 3

# Sketch on XZ plane
sketch5 = body.newObject("Sketcher::SketchObject", "Sketch004")
sketch5.AttachmentSupport = (doc.getObject("XZ_Plane"), [""])
sketch5.MapMode = "FlatFace"
sketch5.AttachmentOffset = App.Placement(App.Vector(0, 0, 25), App.Rotation())
sketch5.addGeometry(Part.ArcOfCircle(Part.Circle(App.Vector(15, 9.6, 0), App.Vector(0, 0, 1), 2.2), math.radians(114), math.radians(426)), False)
sketch5.addGeometry(Part.ArcOfCircle(Part.Circle(App.Vector(15, 10.6, 0), App.Vector(0, 0, 1), 1.4), math.radians(49), math.radians(131)), False)
sketch5.addConstraint(Sketcher.Constraint("Coincident", 0, 1, 1, 2))
sketch5.addConstraint(Sketcher.Constraint("Coincident", 1, 1, 0, 2))
sketch5.addConstraint(Sketcher.Constraint("Horizontal", 0, 1, 1, 1))
sketch5.addConstraint(Sketcher.Constraint("Radius", 1, Q("1.4 mm")))
sketch5.addConstraint(Sketcher.Constraint("Radius", 0, Q("2.25 mm")))
sketch5.addConstraint(Sketcher.Constraint("DistanceX", -1, 1, 0, 3, Q("15 mm")))
sketch5.addConstraint(Sketcher.Constraint("DistanceY", 0, 3, 1, 3, Q("1 mm")))
sketch5.addConstraint(Sketcher.Constraint("DistanceY", -1, 1, 0, 3, Q("9.6 mm")))
pocket1 = body.newObject("PartDesign::Pocket", "Pocket")
pocket1.Profile = sketch5
pocket1.Length = 27
pocket1.Midplane = True

# Sketch on XY plane
sketch6 = body.newObject("Sketcher::SketchObject", "Sketch005")
sketch6.AttachmentSupport = (doc.getObject("XY_Plane"), [""])
sketch6.MapMode = "FlatFace"
sketch6.AttachmentOffset = App.Placement(App.Vector(0, 0, 27.5), App.Rotation())
sketch6.addGeometry(Part.Circle(App.Vector(10.5, 6, 0), App.Vector(0, 0, 1), 2.1), False)
sketch6.addGeometry(Part.Circle(App.Vector(10.5, -6, 0), App.Vector(0, 0, 1), 2.1), False)
sketch6.addConstraint(Sketcher.Constraint("Equal", 0, 1))
sketch6.addConstraint(Sketcher.Constraint("Symmetric", 0, 3, 1, 3, -1))
sketch6.addConstraint(Sketcher.Constraint("Diameter", 0, Q("4.2 mm")))
sketch6.addConstraint(Sketcher.Constraint("DistanceY", -1, 1, 0, 3, Q("6 mm")))
sketch6.addConstraint(Sketcher.Constraint("DistanceX", -1, 1, 0, 3, Q("10.5 mm")))
pocket2 = body.newObject("PartDesign::Pocket", "Pocket001")
pocket2.Profile = sketch6
pocket2.Length = 1.5
doc.recompute()

fillet = body.newObject("PartDesign::Fillet", "Fillet")
fillet.Base = (pocket2, edges_at(pocket2, [(32.379, -13.879, 3), (29.2, 13, 3)]))
fillet.Radius = 3

doc.recompute()
